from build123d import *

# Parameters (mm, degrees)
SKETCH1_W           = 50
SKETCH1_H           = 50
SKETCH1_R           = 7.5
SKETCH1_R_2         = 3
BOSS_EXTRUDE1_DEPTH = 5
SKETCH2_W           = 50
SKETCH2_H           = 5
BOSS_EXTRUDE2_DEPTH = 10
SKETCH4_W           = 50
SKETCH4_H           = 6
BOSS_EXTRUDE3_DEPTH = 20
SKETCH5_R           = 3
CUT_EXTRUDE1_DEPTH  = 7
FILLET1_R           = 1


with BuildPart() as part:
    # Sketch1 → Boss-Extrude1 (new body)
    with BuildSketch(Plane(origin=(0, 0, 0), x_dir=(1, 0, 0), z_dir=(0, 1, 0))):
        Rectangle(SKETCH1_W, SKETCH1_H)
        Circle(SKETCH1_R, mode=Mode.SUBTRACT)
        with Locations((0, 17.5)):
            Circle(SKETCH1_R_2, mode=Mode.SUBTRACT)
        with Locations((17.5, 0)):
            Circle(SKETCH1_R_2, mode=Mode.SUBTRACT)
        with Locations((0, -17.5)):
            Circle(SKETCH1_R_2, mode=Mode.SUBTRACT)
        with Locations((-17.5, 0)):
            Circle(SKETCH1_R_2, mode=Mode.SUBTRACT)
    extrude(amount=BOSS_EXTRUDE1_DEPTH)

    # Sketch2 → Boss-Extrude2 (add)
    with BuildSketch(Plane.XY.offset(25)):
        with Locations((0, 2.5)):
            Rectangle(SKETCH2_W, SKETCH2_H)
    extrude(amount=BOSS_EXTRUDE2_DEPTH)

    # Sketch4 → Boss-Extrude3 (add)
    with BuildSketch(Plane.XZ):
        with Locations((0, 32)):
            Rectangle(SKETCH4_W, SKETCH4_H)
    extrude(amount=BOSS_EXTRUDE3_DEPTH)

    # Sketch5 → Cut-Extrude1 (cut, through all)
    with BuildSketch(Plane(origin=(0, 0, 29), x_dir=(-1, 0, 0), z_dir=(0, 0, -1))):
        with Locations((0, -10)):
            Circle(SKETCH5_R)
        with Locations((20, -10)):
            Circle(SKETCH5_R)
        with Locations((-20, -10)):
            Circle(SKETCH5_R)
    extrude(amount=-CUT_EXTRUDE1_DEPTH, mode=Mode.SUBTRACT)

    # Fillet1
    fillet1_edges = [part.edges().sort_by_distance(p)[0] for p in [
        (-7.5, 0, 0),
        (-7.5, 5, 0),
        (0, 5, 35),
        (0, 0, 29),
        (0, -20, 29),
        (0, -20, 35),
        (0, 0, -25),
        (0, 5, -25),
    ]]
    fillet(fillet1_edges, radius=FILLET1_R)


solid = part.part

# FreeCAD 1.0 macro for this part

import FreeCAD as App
import Part
import Sketcher
from FreeCAD import Vector


def edges_at(feature, points):
    """Names of the edges that pass closest to the given points."""
    edges = feature.Shape.Edges
    near = lambda p: min(range(len(edges)), key=lambda i: edges[i].distToShape(Part.Vertex(*p))[0])
    return sorted({f"Edge{near(p) + 1}" for p in points})

doc = App.newDocument("Part")
params = doc.addObject("Spreadsheet::Sheet", "Params")
for row, (alias, value) in enumerate([
    ("sketch1_diameter", "6 mm"),
    ("sketch1_diameter2", "15 mm"),
    ("sketch1_width", "50 mm"),
    ("pad1_length", "5 mm"),
    ("sketch2_width", "50 mm"),
    ("sketch2_height", "5 mm"),
    ("pad2_length", "10 mm"),
    ("sketch3_width", "50 mm"),
    ("sketch3_height", "6 mm"),
    ("pad3_length", "20 mm"),
    ("sketch4_diameter", "6 mm"),
    ("fillet_radius", "1 mm"),
], start=1):
    params.set(f"A{row}", alias)
    params.set(f"B{row}", "=" + value)
    params.setAlias(f"B{row}", alias)

body = doc.addObject("PartDesign::Body", "Body")

# Sketch on XZ plane
sketch1 = body.newObject("Sketcher::SketchObject", "Sketch")
sketch1.AttachmentSupport = (doc.getObject("XZ_Plane"), [""])
sketch1.MapMode = "FlatFace"
sketch1.addGeometry([
    Part.LineSegment(Vector(-25, -25, 0), Vector(-25, 25, 0)),  # 0
    Part.LineSegment(Vector(-25, 25, 0), Vector(25, 25, 0)),  # 1
    Part.LineSegment(Vector(25, 25, 0), Vector(25, -25, 0)),  # 2
    Part.LineSegment(Vector(25, -25, 0), Vector(-25, -25, 0)),  # 3
    Part.Circle(Vector(0, 17.5, 0), Vector(0, 0, 1), 3),  # 4
    Part.Circle(Vector(-17.5, 0, 0), Vector(0, 0, 1), 3),  # 5
    Part.Circle(Vector(0, 0, 0), Vector(0, 0, 1), 7.5),  # 6
    Part.Circle(Vector(17.5, 0, 0), Vector(0, 0, 1), 3),  # 7
    Part.Circle(Vector(0, -17.5, 0), Vector(0, 0, 1), 3),  # 8
], False)
sketch1.addConstraint([
    Sketcher.Constraint("Coincident", 0, 2, 1, 1),
    Sketcher.Constraint("Coincident", 1, 2, 2, 1),
    Sketcher.Constraint("Coincident", 2, 2, 3, 1),
    Sketcher.Constraint("Coincident", 3, 2, 0, 1),
    Sketcher.Constraint("Vertical", 0),
    Sketcher.Constraint("Horizontal", 1),
    Sketcher.Constraint("Vertical", 2),
    Sketcher.Constraint("Horizontal", 3),
    Sketcher.Constraint("Coincident", 6, 3, -1, 1),
    Sketcher.Constraint("Equal", 4, 5),
    Sketcher.Constraint("Equal", 5, 7),
    Sketcher.Constraint("Equal", 7, 8),
    Sketcher.Constraint("Symmetric", 5, 3, 7, 3, -1, 1),
    Sketcher.Constraint("Symmetric", 4, 3, 8, 3, -1, 1),
    Sketcher.Constraint("Symmetric", 0, 2, 2, 2, -1, 1),
    Sketcher.Constraint("PointOnObject", 4, 3, -2),
    Sketcher.Constraint("PointOnObject", 5, 3, -1),
    Sketcher.Constraint("Equal", 3, 0),
    Sketcher.Constraint("Diameter", 4, 6.0),
    Sketcher.Constraint("Diameter", 6, 15.0),
    Sketcher.Constraint("DistanceX", 1, 1, 1, 2, 50.0),
    Sketcher.Constraint("DistanceX", 5, 3, 7, 3, 35.0),
    Sketcher.Constraint("DistanceY", 8, 3, 4, 3, 35.0),
])
sketch1.setExpression("Constraints[18]", "Params.sketch1_diameter")
sketch1.setExpression("Constraints[19]", "Params.sketch1_diameter2")
sketch1.setExpression("Constraints[20]", "Params.sketch1_width")
pad1 = body.newObject("PartDesign::Pad", "Pad")
pad1.Profile = sketch1
pad1.setExpression("Length", "Params.pad1_length")
pad1.Reversed = True

# Sketch on XY plane
sketch2 = body.newObject("Sketcher::SketchObject", "Sketch001")
sketch2.AttachmentSupport = (doc.getObject("XY_Plane"), [""])
sketch2.MapMode = "FlatFace"
sketch2.AttachmentOffset = App.Placement(Vector(0, 0, 25), App.Rotation())
sketch2.addGeometry([
    Part.LineSegment(Vector(-25, 5, 0), Vector(-25, 0, 0)),
    Part.LineSegment(Vector(-25, 0, 0), Vector(25, 0, 0)),
    Part.LineSegment(Vector(25, 0, 0), Vector(25, 5, 0)),
    Part.LineSegment(Vector(25, 5, 0), Vector(-25, 5, 0)),
], False)
sketch2.addConstraint([
    Sketcher.Constraint("Coincident", 0, 2, 1, 1),
    Sketcher.Constraint("Coincident", 1, 2, 2, 1),
    Sketcher.Constraint("Coincident", 2, 2, 3, 1),
    Sketcher.Constraint("Coincident", 3, 2, 0, 1),
    Sketcher.Constraint("Vertical", 0),
    Sketcher.Constraint("Horizontal", 1),
    Sketcher.Constraint("Vertical", 2),
    Sketcher.Constraint("Horizontal", 3),
    Sketcher.Constraint("Symmetric", 0, 2, 1, 2, -1, 1),
    Sketcher.Constraint("DistanceX", 1, 1, 1, 2, 50.0),
    Sketcher.Constraint("DistanceY", 0, 2, 0, 1, 5.0),
])
sketch2.setExpression("Constraints[9]", "Params.sketch2_width")
sketch2.setExpression("Constraints[10]", "Params.sketch2_height")
pad2 = body.newObject("PartDesign::Pad", "Pad001")
pad2.Profile = sketch2
pad2.setExpression("Length", "Params.pad2_length")

# Sketch on XZ plane
sketch3 = body.newObject("Sketcher::SketchObject", "Sketch002")
sketch3.AttachmentSupport = (doc.getObject("XZ_Plane"), [""])
sketch3.MapMode = "FlatFace"
sketch3.addGeometry([
    Part.LineSegment(Vector(-25, 35, 0), Vector(-25, 29, 0)),
    Part.LineSegment(Vector(-25, 29, 0), Vector(25, 29, 0)),
    Part.LineSegment(Vector(25, 29, 0), Vector(25, 35, 0)),
    Part.LineSegment(Vector(25, 35, 0), Vector(-25, 35, 0)),
], False)
sketch3.addConstraint([
    Sketcher.Constraint("Coincident", 0, 2, 1, 1),
    Sketcher.Constraint("Coincident", 1, 2, 2, 1),
    Sketcher.Constraint("Coincident", 2, 2, 3, 1),
    Sketcher.Constraint("Coincident", 3, 2, 0, 1),
    Sketcher.Constraint("Vertical", 0),
    Sketcher.Constraint("Horizontal", 1),
    Sketcher.Constraint("Vertical", 2),
    Sketcher.Constraint("Horizontal", 3),
    Sketcher.Constraint("DistanceX", 1, 1, 1, 2, 50.0),
    Sketcher.Constraint("DistanceY", 0, 2, 0, 1, 6.0),
    Sketcher.Constraint("DistanceX", 0, 2, -1, 1, 25.0),
    Sketcher.Constraint("DistanceY", -1, 1, 0, 2, 29.0),
])
sketch3.setExpression("Constraints[8]", "Params.sketch3_width")
sketch3.setExpression("Constraints[9]", "Params.sketch3_height")
pad3 = body.newObject("PartDesign::Pad", "Pad002")
pad3.Profile = sketch3
pad3.setExpression("Length", "Params.pad3_length")

# Sketch on XY plane
sketch4 = body.newObject("Sketcher::SketchObject", "Sketch003")
sketch4.AttachmentSupport = (doc.getObject("XY_Plane"), [""])
sketch4.MapMode = "FlatFace"
sketch4.AttachmentOffset = App.Placement(Vector(0, 0, 29), App.Rotation())
sketch4.addGeometry([
    Part.Circle(Vector(0, -10, 0), Vector(0, 0, 1), 3),
    Part.Circle(Vector(-20, -10, 0), Vector(0, 0, 1), 3),
    Part.Circle(Vector(20, -10, 0), Vector(0, 0, 1), 3),
], False)
sketch4.addConstraint([
    Sketcher.Constraint("Equal", 0, 1),
    Sketcher.Constraint("Equal", 1, 2),
    Sketcher.Constraint("Symmetric", 1, 3, 2, 3, -2),
    Sketcher.Constraint("PointOnObject", 0, 3, -2),
    Sketcher.Constraint("Horizontal", 0, 3, 1, 3),
    Sketcher.Constraint("Diameter", 0, 6.0),
    Sketcher.Constraint("DistanceY", 0, 3, -1, 1, 10.0),
    Sketcher.Constraint("DistanceX", 1, 3, -1, 1, 20.0),
])
sketch4.setExpression("Constraints[5]", "Params.sketch4_diameter")
pocket1 = body.newObject("PartDesign::Pocket", "Pocket")
pocket1.Profile = sketch4
pocket1.Type = "ThroughAll"
pocket1.Reversed = True
doc.recompute()

fillet = body.newObject("PartDesign::Fillet", "Fillet")
fillet.Base = (pocket1, edges_at(pocket1, [
    (-7.5, 0, 0),
    (-7.5, 5, 0),
    (0, 5, 35),
    (0, 0, 29),
    (0, -20, 29),
    (0, -20, 35),
    (0, 0, -25),
    (0, 5, -25),
]))
fillet.setExpression("Radius", "Params.fillet_radius")

doc.recompute()
